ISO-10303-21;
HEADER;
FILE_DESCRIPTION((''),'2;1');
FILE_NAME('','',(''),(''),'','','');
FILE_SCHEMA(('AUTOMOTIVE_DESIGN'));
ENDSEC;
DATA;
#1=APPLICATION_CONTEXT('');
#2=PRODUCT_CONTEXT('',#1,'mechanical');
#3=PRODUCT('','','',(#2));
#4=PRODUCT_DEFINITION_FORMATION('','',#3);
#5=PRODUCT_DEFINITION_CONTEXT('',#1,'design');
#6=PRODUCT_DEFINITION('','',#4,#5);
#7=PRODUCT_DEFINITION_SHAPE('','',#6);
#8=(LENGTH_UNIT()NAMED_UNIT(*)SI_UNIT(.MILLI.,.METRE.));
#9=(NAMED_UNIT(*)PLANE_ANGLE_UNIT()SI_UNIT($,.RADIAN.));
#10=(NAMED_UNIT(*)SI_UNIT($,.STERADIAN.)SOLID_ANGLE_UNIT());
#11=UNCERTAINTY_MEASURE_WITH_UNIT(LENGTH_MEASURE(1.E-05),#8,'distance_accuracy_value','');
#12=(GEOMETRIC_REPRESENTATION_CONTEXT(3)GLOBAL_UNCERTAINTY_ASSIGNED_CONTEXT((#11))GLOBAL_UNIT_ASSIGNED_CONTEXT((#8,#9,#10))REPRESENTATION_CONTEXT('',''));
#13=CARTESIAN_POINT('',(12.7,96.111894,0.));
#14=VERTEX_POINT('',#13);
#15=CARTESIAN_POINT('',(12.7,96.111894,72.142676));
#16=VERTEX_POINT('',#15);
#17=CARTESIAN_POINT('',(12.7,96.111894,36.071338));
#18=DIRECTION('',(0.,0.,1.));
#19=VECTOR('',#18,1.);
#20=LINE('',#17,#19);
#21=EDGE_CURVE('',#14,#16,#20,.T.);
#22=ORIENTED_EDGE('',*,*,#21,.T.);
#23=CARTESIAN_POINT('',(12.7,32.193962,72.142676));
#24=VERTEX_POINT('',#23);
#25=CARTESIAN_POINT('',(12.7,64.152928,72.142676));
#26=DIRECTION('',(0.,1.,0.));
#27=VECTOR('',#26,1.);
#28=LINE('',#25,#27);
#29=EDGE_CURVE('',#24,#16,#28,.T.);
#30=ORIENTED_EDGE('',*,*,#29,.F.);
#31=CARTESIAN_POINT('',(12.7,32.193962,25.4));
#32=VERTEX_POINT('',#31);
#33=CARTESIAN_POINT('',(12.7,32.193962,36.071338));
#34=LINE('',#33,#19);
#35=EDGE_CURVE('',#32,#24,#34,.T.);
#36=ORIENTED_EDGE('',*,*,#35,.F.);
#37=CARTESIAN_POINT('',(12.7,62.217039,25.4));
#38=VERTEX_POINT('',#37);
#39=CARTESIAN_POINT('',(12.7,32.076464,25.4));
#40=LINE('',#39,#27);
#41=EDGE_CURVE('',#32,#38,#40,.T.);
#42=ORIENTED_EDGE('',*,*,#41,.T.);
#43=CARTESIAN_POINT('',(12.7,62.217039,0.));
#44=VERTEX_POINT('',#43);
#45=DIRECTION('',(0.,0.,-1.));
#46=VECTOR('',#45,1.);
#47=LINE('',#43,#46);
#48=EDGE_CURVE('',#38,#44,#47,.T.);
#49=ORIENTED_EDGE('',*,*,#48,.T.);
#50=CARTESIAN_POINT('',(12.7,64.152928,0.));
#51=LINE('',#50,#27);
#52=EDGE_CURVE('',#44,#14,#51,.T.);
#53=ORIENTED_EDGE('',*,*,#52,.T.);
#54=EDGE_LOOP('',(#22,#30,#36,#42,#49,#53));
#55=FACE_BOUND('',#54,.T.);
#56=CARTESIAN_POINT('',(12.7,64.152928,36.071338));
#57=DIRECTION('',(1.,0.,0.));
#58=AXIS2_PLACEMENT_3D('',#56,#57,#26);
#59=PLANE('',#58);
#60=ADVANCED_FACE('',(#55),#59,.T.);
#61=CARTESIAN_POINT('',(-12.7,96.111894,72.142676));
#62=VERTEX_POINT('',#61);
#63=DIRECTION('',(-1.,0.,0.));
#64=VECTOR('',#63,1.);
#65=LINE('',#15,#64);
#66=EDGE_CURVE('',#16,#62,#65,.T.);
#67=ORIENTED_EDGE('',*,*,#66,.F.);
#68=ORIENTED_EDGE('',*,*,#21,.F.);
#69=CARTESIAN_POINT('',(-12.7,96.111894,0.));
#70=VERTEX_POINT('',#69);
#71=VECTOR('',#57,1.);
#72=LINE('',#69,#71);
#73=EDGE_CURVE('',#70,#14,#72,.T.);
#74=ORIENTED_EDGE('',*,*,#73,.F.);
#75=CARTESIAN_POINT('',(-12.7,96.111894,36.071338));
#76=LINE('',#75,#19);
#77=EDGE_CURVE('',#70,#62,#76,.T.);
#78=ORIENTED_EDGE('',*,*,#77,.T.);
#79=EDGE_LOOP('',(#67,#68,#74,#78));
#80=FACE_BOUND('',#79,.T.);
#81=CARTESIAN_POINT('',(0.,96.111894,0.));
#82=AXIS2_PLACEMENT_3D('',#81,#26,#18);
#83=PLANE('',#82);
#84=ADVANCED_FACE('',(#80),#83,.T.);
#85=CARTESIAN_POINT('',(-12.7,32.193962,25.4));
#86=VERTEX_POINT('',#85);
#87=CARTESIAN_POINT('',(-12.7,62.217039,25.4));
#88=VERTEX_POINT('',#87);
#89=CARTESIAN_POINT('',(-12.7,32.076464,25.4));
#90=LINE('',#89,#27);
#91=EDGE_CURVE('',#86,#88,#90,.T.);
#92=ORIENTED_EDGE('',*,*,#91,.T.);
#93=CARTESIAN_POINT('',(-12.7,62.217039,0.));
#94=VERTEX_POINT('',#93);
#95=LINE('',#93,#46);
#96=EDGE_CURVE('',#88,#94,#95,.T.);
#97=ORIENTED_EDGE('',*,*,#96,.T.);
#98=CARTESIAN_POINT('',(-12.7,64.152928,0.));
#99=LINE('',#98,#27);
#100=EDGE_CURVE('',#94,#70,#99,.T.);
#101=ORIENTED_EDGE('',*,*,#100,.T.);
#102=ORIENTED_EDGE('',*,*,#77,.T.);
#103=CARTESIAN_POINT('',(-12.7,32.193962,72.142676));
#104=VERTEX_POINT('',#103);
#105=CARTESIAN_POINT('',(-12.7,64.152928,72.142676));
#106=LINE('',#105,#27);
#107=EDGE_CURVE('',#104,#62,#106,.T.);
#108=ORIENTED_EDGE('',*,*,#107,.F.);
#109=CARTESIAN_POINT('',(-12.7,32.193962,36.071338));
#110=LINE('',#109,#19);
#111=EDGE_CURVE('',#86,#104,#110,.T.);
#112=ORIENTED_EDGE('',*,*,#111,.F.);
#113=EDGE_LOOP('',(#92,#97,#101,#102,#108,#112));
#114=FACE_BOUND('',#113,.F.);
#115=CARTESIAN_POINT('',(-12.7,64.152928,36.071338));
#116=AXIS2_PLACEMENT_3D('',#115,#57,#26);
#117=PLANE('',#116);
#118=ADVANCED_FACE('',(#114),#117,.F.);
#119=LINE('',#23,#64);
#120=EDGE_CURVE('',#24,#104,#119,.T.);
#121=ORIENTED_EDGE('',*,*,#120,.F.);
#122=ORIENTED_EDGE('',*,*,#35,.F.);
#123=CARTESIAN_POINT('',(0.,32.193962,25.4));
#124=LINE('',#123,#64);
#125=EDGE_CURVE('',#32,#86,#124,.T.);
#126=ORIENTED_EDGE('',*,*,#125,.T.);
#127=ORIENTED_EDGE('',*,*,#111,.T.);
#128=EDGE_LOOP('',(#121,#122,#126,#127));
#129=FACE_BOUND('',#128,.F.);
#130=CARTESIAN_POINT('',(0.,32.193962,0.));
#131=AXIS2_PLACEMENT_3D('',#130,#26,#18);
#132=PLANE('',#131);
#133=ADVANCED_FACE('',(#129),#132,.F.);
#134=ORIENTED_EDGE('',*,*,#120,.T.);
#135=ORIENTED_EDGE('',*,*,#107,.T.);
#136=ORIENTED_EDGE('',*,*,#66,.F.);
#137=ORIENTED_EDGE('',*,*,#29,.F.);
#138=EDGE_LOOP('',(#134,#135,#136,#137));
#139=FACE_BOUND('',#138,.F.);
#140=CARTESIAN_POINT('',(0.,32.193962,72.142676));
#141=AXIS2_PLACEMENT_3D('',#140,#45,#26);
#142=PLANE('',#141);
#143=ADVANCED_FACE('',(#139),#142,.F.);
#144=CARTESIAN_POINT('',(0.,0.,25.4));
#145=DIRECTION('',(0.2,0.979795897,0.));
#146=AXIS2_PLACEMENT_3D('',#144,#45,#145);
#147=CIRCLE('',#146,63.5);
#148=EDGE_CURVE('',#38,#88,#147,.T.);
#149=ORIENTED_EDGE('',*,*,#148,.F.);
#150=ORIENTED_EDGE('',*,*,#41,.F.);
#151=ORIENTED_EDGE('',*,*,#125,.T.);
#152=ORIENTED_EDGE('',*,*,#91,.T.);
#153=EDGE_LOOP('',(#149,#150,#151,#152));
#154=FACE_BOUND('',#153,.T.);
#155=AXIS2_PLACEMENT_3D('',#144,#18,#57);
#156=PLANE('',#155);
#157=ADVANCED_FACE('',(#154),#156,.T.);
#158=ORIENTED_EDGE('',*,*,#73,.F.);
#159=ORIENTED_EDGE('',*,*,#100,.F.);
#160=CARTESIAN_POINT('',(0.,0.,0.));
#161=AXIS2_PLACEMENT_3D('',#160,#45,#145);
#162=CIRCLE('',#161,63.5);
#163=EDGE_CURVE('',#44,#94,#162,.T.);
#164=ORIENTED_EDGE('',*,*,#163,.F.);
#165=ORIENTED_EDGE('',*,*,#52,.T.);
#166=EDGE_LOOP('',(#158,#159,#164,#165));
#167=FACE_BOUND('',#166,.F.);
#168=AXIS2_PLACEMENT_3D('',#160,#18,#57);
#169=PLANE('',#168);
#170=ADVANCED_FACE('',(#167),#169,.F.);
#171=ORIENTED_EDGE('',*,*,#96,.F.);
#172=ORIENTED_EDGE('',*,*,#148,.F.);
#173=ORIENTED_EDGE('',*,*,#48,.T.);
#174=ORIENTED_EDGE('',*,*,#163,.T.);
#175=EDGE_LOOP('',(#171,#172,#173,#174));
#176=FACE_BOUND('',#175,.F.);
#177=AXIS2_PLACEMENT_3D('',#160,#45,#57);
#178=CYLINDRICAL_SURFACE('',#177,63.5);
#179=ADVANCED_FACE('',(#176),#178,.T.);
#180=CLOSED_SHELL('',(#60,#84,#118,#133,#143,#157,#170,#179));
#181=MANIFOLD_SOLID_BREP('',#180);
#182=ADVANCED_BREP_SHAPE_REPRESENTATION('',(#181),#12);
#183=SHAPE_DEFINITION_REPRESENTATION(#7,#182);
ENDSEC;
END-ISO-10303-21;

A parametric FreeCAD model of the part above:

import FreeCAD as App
import Part
import Sketcher

V = App.Vector
Q = App.Units.Quantity


def add_polygon(sketch, points):
    """Adds a closed chain of lines whose ends are joined by coincident constraints."""
    first, n = sketch.GeometryCount, len(points)
    for a, b in zip(points, points[1:] + points[:1]):
        sketch.addGeometry(Part.LineSegment(App.Vector(*a, 0), App.Vector(*b, 0)), False)
    for i in range(n):
        sketch.addConstraint(Sketcher.Constraint("Coincident", first + i, 2, first + (i + 1) % n, 1))

doc = App.newDocument("Part")
body = doc.addObject("PartDesign::Body", "Body")

# Sketch on XY plane
sketch1 = body.newObject("Sketcher::SketchObject", "Sketch")
sketch1.AttachmentSupport = (doc.getObject("XY_Plane"), [""])
sketch1.MapMode = "FlatFace"
sketch1.addGeometry(Part.Circle(V(0, 0, 0), V(0, 0, 1), 63.5), False)
sketch1.addConstraint([
    Sketcher.Constraint("Coincident", 0, 3, -1, 1),
    Sketcher.Constraint("Diameter", 0, Q("5 in")),
])
pad1 = body.newObject("PartDesign::Pad", "Pad")
pad1.Profile = sketch1
pad1.Length = Q("1 in")

# Sketch on YZ plane
sketch2 = body.newObject("Sketcher::SketchObject", "Sketch001")
sketch2.AttachmentSupport = (doc.getObject("YZ_Plane"), [""])
sketch2.MapMode = "FlatFace"
add_polygon(sketch2, [(32.193962, 72.142676), (32.193962, 0), (96.111894, 0), (96.111894, 72.142676)])  # lines 0-3
sketch2.addConstraint([
    Sketcher.Constraint("Vertical", 0),
    Sketcher.Constraint("Horizontal", 1),
    Sketcher.Constraint("Vertical", 2),
    Sketcher.Constraint("Horizontal", 3),
    Sketcher.Constraint("PointOnObject", 0, 2, -1),
    Sketcher.Constraint("DistanceX", 1, 1, 1, 2, Q("63.917932 mm")),
    Sketcher.Constraint("DistanceY", 0, 2, 0, 1, Q("72.142676 mm")),
    Sketcher.Constraint("DistanceX", -1, 1, 0, 2, Q("32.193962 mm")),
])
pad2 = body.newObject("PartDesign::Pad", "Pad001")
pad2.Profile = sketch2
pad2.Length = Q("1 in")
pad2.Midplane = True

doc.recompute()
